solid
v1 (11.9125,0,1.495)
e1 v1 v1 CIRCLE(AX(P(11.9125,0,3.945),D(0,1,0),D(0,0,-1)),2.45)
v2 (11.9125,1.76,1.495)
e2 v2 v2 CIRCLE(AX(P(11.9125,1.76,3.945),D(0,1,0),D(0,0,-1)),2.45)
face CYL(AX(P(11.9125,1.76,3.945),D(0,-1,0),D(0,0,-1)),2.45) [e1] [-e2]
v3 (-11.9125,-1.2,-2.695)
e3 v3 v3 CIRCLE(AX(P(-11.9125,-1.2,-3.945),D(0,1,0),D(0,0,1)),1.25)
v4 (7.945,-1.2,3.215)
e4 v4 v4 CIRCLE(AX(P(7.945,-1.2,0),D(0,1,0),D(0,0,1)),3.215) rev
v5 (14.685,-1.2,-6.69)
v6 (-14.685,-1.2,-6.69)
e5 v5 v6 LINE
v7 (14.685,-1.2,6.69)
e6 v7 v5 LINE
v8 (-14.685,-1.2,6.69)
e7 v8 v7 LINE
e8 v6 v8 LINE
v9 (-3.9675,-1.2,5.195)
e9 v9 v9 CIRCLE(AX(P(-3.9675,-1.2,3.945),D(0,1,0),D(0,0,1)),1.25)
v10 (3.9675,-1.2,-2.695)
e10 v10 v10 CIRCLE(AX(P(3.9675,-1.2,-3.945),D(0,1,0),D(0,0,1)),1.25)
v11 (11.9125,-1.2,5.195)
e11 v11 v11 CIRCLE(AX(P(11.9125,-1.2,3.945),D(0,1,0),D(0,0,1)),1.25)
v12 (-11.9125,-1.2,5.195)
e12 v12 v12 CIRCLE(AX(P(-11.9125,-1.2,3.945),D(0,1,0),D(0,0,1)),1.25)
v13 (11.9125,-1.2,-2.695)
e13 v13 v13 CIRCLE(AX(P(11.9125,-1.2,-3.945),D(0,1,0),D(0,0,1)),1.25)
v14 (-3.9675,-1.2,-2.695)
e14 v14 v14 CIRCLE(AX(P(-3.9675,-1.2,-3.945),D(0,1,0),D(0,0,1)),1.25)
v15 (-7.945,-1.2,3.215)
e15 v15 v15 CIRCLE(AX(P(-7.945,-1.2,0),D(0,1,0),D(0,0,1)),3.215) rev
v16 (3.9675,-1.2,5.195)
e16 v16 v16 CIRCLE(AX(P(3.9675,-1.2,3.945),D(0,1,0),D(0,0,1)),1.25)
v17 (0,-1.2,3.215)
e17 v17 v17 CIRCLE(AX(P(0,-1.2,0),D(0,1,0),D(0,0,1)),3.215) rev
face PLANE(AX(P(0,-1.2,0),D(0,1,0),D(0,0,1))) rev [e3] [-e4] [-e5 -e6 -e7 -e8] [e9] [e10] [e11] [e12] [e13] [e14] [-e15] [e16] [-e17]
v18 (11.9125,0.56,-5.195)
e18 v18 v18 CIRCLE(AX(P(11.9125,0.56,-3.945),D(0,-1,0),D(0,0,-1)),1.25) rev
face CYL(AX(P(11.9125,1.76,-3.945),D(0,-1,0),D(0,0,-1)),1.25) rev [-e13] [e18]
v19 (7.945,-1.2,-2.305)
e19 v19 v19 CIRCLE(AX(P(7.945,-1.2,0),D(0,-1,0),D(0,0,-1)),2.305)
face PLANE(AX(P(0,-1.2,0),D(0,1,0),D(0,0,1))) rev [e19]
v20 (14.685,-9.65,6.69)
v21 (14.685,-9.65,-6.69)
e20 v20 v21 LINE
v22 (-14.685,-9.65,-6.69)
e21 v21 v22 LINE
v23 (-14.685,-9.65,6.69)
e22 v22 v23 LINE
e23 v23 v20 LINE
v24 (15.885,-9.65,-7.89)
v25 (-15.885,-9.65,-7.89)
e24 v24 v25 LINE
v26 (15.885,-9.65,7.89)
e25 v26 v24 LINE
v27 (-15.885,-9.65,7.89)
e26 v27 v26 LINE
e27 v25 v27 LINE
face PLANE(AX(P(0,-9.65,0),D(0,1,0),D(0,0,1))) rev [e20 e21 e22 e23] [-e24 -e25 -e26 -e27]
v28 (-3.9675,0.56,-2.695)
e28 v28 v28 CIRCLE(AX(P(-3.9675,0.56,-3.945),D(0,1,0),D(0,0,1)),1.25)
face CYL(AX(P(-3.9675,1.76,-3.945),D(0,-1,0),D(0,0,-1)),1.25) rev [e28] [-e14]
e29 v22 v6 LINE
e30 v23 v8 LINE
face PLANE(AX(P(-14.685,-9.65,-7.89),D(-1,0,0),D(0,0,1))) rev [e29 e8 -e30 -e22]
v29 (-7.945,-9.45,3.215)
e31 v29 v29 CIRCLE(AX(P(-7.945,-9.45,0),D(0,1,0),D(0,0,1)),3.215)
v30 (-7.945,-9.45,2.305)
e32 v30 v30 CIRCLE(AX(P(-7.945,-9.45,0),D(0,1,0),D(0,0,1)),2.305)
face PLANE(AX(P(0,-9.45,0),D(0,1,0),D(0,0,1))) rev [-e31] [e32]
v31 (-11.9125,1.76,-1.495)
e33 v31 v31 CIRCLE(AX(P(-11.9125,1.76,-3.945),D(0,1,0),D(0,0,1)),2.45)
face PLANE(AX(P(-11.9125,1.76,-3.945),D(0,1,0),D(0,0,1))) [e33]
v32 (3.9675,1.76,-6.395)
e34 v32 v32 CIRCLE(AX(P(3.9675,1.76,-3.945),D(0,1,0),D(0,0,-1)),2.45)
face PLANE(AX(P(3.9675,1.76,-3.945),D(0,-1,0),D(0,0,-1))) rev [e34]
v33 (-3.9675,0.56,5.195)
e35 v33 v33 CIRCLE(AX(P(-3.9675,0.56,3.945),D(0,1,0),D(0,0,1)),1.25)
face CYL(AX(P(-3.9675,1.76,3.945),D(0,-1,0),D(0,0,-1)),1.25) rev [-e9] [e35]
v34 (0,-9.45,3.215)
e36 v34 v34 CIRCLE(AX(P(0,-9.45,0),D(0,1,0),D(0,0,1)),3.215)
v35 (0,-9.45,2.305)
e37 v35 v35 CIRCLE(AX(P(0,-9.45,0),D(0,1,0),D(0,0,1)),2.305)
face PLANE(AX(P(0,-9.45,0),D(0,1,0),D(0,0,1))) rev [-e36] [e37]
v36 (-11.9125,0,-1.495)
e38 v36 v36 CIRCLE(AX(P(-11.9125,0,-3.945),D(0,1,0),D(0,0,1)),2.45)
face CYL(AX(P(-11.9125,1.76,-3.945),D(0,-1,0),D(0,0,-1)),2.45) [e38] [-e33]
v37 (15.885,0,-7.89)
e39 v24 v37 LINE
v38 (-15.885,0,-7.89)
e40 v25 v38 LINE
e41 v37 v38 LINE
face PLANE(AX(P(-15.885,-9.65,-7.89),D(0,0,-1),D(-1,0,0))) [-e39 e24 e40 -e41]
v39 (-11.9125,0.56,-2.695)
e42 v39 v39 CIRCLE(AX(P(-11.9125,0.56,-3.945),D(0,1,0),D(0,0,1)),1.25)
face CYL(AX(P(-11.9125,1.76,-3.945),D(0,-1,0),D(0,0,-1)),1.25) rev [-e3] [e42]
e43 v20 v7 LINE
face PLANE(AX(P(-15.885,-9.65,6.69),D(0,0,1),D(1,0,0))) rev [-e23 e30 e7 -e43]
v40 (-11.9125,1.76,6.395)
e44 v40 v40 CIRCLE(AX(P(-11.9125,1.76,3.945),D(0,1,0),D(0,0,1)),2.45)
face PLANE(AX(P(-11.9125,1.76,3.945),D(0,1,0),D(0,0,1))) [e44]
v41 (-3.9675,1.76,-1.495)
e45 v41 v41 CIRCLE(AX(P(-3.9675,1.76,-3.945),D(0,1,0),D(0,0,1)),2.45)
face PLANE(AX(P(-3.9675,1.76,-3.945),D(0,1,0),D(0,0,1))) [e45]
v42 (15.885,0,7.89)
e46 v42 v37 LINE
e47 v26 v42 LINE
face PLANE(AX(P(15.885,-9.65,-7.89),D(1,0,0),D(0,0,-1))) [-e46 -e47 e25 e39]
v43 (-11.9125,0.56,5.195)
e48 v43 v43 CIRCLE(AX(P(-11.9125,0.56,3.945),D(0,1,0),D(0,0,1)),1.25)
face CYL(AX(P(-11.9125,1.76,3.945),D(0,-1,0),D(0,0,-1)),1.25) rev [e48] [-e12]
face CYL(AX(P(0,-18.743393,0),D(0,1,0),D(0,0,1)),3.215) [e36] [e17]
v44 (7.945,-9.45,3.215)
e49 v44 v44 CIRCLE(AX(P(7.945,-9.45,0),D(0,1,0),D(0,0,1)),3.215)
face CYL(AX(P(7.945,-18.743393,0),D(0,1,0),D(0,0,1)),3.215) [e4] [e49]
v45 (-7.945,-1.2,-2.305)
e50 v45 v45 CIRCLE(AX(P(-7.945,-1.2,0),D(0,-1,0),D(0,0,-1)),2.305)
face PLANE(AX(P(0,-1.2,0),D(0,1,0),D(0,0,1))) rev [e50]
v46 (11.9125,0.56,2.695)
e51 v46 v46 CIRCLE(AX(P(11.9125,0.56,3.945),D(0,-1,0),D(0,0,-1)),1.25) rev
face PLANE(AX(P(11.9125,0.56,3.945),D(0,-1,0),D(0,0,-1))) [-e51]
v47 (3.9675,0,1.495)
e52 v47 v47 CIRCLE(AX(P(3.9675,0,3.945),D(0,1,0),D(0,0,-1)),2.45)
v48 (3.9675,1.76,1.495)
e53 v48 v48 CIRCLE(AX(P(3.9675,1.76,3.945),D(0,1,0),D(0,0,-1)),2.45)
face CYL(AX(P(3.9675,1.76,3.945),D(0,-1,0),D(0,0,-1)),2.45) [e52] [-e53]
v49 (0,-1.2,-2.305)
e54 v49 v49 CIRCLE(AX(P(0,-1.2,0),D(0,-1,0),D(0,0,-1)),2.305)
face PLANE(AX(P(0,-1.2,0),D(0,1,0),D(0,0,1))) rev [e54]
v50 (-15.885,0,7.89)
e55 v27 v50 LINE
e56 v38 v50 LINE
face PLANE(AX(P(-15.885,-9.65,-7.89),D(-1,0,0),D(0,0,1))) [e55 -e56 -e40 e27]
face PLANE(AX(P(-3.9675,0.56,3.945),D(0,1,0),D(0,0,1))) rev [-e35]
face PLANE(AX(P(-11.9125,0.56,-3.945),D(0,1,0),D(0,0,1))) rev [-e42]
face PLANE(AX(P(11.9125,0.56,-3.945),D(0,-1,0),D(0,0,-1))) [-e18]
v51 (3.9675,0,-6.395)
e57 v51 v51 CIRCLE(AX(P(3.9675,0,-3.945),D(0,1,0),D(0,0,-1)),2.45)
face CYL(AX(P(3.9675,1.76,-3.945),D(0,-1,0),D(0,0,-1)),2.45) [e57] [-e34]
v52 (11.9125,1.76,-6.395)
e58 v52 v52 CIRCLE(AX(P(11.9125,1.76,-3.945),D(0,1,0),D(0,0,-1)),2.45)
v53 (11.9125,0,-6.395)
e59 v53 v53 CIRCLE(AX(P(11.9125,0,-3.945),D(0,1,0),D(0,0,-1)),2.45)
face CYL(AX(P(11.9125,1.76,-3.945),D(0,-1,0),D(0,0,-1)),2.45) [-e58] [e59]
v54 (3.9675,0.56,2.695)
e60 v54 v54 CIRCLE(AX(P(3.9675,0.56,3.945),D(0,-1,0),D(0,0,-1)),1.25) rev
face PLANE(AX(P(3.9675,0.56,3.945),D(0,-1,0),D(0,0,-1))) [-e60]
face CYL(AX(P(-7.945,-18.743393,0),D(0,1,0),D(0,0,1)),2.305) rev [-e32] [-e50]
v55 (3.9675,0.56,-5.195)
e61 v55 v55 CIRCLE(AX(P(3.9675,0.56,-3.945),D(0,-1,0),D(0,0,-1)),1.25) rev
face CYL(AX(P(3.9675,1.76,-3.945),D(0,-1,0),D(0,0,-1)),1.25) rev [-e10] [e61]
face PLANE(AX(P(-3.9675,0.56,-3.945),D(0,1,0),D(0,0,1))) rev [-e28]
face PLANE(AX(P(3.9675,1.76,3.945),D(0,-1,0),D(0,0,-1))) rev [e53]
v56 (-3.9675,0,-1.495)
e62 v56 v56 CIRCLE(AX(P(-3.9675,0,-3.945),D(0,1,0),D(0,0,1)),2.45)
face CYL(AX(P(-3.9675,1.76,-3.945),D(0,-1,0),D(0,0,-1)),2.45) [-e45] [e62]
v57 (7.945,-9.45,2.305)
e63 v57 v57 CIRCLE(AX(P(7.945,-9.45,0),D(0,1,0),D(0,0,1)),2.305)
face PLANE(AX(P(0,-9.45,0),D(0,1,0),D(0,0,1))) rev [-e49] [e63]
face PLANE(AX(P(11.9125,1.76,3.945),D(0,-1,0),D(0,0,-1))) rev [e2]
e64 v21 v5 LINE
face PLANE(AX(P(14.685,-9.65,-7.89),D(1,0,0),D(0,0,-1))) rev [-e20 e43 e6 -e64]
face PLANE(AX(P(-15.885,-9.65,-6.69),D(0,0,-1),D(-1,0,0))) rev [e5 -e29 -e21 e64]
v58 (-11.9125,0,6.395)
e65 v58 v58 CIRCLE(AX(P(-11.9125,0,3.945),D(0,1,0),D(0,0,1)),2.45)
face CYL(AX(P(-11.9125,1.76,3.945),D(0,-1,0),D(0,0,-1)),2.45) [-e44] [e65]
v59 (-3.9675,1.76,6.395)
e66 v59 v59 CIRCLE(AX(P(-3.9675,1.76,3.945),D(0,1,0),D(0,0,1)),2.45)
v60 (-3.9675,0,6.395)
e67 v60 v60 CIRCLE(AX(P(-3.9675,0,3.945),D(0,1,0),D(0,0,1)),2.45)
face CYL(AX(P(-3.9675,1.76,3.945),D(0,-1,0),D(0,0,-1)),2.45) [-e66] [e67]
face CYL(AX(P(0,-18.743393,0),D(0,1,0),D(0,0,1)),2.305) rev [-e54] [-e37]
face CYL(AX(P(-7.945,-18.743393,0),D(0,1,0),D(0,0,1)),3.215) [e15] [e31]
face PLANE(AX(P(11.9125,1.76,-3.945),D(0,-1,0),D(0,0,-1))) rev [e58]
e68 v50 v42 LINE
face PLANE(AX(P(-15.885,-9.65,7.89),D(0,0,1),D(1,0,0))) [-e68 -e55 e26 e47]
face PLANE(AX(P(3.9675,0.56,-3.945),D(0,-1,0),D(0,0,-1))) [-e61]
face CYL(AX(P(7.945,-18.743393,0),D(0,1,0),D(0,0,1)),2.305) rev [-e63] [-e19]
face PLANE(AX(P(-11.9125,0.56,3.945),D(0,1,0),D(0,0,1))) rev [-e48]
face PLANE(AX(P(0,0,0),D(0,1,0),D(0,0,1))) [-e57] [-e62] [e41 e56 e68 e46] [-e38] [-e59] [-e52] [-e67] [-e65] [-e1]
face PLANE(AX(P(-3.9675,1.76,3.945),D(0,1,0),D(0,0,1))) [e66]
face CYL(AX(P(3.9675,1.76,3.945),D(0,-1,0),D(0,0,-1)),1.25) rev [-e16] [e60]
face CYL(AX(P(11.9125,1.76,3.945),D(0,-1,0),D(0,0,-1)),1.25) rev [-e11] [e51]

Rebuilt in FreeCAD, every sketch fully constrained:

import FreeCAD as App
import Part
import Sketcher
from FreeCAD import Vector
Q = App.Units.Quantity


def faces_at(feature, points):
    """Names of the faces that lie closest to the given points."""
    faces = feature.Shape.Faces
    near = lambda p: min(range(len(faces)), key=lambda i: faces[i].distToShape(Part.Vertex(*p))[0])
    return sorted({f"Face{near(p) + 1}" for p in points})

doc = App.newDocument("Part")
body = doc.addObject("PartDesign::Body", "Body")

sketch1 = body.newObject("Sketcher::SketchObject", "Sketch")
sketch1.AttachmentSupport = (doc.getObject("XZ_Plane"), [""])
sketch1.MapMode = "FlatFace"
sketch1.addGeometry([
    Part.LineSegment(Vector(-16, -8, 0), Vector(-16, 8, 0)),
    Part.LineSegment(Vector(-16, 8, 0), Vector(16, 8, 0)),
    Part.LineSegment(Vector(16, 8, 0), Vector(16, -8, 0)),
    Part.LineSegment(Vector(16, -8, 0), Vector(-16, -8, 0)),
], False)
sketch1.addConstraint([
    Sketcher.Constraint("Coincident", 0, 2, 1, 1),
    Sketcher.Constraint("Coincident", 1, 2, 2, 1),
    Sketcher.Constraint("Coincident", 2, 2, 3, 1),
    Sketcher.Constraint("Coincident", 3, 2, 0, 1),
    Sketcher.Constraint("Vertical", 0),
    Sketcher.Constraint("Horizontal", 1),
    Sketcher.Constraint("Vertical", 2),
    Sketcher.Constraint("Horizontal", 3),
    Sketcher.Constraint("Symmetric", 0, 2, 2, 2, -1, 1),
    Sketcher.Constraint("DistanceX", 1, 1, 1, 2, Q("31.77 mm")),
    Sketcher.Constraint("DistanceY", 0, 1, 0, 2, Q("15.78 mm")),
])
pad1 = body.newObject("PartDesign::Pad", "Pad")
pad1.Profile = sketch1
pad1.Length = 9.65

sketch2 = body.newObject("Sketcher::SketchObject", "Sketch001")
sketch2.AttachmentSupport = (doc.getObject("XZ_Plane"), [""])
sketch2.MapMode = "FlatFace"
sketch2.addGeometry([
    Part.Circle(Vector(-11.9, -3.9, 0), Vector(0, 0, 1), 2.5),
    Part.Circle(Vector(-4, -3.9, 0), Vector(0, 0, 1), 2.5),
    Part.Circle(Vector(-4, 3.9, 0), Vector(0, 0, 1), 2.5),
    Part.Circle(Vector(-11.9, 3.9, 0), Vector(0, 0, 1), 2.5),
    Part.Circle(Vector(11.9, 3.9, 0), Vector(0, 0, 1), 2.5),
    Part.Circle(Vector(4, 3.9, 0), Vector(0, 0, 1), 2.5),
    Part.Circle(Vector(4, -3.9, 0), Vector(0, 0, 1), 2.5),
    Part.Circle(Vector(11.9, -3.9, 0), Vector(0, 0, 1), 2.5),
], False)
sketch2.addConstraint([
    Sketcher.Constraint("Equal", 0, 1),
    Sketcher.Constraint("Equal", 1, 2),
    Sketcher.Constraint("Equal", 2, 3),
    Sketcher.Constraint("Equal", 3, 4),
    Sketcher.Constraint("Equal", 4, 5),
    Sketcher.Constraint("Equal", 5, 6),
    Sketcher.Constraint("Equal", 6, 7),
    Sketcher.Constraint("Symmetric", 0, 3, 4, 3, -1, 1),
    Sketcher.Constraint("Symmetric", 1, 3, 5, 3, -1, 1),
    Sketcher.Constraint("Symmetric", 2, 3, 6, 3, -1, 1),
    Sketcher.Constraint("Symmetric", 3, 3, 7, 3, -1, 1),
    Sketcher.Constraint("Symmetric", 3, 3, 4, 3, -2),
    Sketcher.Constraint("Symmetric", 2, 3, 5, 3, -2),
    Sketcher.Constraint("Horizontal", 0, 3, 1, 3),
    Sketcher.Constraint("Diameter", 0, Q("4.9 mm")),
    Sketcher.Constraint("DistanceY", 1, 3, 2, 3, Q("7.89 mm")),
    Sketcher.Constraint("DistanceX", 2, 3, 4, 3, Q("15.88 mm")),
    Sketcher.Constraint("DistanceX", 0, 3, 1, 3, Q("7.945 mm")),
])
pad2 = body.newObject("PartDesign::Pad", "Pad001")
pad2.Profile = sketch2
pad2.Length = 1.76
pad2.Reversed = True
doc.recompute()

thickness = body.newObject("PartDesign::Thickness", "Thickness")
thickness.Base = (pad2, faces_at(pad2, [(0, -9.65, 0)]))
thickness.Value = 1.2
thickness.Reversed = True
thickness.Join = "Intersection"

sketch3 = body.newObject("Sketcher::SketchObject", "Sketch002")
sketch3.AttachmentSupport = (doc.getObject("XZ_Plane"), [""])
sketch3.MapMode = "FlatFace"
sketch3.AttachmentOffset = App.Placement(Vector(0, 0, 1.2), App.Rotation())
sketch3.addGeometry([
    Part.Circle(Vector(0, 0, 0), Vector(0, 0, 1), 3.2),
    Part.Circle(Vector(0, 0, 0), Vector(0, 0, 1), 2.3),
    Part.Circle(Vector(7.9, 0, 0), Vector(0, 0, 1), 3.2),
    Part.Circle(Vector(7.9, 0, 0), Vector(0, 0, 1), 2.3),
    Part.Circle(Vector(-7.9, 0, 0), Vector(0, 0, 1), 3.2),
    Part.Circle(Vector(-7.9, 0, 0), Vector(0, 0, 1), 2.3),
], False)
sketch3.addConstraint([
    Sketcher.Constraint("Coincident", 0, 3, -1, 1),
    Sketcher.Constraint("Coincident", 1, 3, -1, 1),
    Sketcher.Constraint("Coincident", 3, 3, 2, 3),
    Sketcher.Constraint("Coincident", 5, 3, 4, 3),
    Sketcher.Constraint("Equal", 0, 2),
    Sketcher.Constraint("Equal", 1, 3),
    Sketcher.Constraint("Equal", 2, 4),
    Sketcher.Constraint("Equal", 3, 5),
    Sketcher.Constraint("Symmetric", 2, 3, 4, 3, -1, 1),
    Sketcher.Constraint("PointOnObject", 2, 3, -1),
    Sketcher.Constraint("Diameter", 0, Q("6.43 mm")),
    Sketcher.Constraint("Diameter", 1, Q("4.61 mm")),
    Sketcher.Constraint("DistanceX", 4, 3, 2, 3, Q("15.89 mm")),
])
pad3 = body.newObject("PartDesign::Pad", "Pad002")
pad3.Profile = sketch3
pad3.Length = 8.25

doc.recompute()
